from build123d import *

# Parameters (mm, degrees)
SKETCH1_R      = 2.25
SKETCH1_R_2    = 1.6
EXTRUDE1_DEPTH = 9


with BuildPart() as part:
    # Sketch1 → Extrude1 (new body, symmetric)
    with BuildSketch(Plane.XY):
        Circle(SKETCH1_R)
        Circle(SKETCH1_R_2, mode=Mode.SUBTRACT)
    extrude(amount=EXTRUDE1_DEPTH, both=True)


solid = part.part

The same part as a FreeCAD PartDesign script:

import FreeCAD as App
import Part
import Sketcher

V = App.Vector

doc = App.newDocument("Part")
body = doc.addObject("PartDesign::Body", "Body")

# Sketch on XY plane
sketch1 = doc.addObject("Sketcher::SketchObject", "Sketch")
body.addObject(sketch1)
sketch1.AttachmentSupport = (doc.XY_Plane, [""])
sketch1.MapMode = "FlatFace"
sketch1.addGeometry([
    Part.Circle(V(0, 0, 0), V(0, 0, 1), 2.25),
    Part.Circle(V(0, 0, 0), V(0, 0, 1), 1.6),
], False)
sketch1.addConstraint([
    Sketcher.Constraint("Coincident", 0, 3, -1, 1),
    Sketcher.Constraint("Coincident", 1, 3, -1, 1),
    Sketcher.Constraint("Diameter", 0, 4.5),
    Sketcher.Constraint("Diameter", 1, 3.2),
])
pad1 = doc.addObject("PartDesign::Pad", "Pad")
body.addObject(pad1)
pad1.Profile = sketch1
pad1.Length = 18
pad1.Midplane = True

doc.recompute()
